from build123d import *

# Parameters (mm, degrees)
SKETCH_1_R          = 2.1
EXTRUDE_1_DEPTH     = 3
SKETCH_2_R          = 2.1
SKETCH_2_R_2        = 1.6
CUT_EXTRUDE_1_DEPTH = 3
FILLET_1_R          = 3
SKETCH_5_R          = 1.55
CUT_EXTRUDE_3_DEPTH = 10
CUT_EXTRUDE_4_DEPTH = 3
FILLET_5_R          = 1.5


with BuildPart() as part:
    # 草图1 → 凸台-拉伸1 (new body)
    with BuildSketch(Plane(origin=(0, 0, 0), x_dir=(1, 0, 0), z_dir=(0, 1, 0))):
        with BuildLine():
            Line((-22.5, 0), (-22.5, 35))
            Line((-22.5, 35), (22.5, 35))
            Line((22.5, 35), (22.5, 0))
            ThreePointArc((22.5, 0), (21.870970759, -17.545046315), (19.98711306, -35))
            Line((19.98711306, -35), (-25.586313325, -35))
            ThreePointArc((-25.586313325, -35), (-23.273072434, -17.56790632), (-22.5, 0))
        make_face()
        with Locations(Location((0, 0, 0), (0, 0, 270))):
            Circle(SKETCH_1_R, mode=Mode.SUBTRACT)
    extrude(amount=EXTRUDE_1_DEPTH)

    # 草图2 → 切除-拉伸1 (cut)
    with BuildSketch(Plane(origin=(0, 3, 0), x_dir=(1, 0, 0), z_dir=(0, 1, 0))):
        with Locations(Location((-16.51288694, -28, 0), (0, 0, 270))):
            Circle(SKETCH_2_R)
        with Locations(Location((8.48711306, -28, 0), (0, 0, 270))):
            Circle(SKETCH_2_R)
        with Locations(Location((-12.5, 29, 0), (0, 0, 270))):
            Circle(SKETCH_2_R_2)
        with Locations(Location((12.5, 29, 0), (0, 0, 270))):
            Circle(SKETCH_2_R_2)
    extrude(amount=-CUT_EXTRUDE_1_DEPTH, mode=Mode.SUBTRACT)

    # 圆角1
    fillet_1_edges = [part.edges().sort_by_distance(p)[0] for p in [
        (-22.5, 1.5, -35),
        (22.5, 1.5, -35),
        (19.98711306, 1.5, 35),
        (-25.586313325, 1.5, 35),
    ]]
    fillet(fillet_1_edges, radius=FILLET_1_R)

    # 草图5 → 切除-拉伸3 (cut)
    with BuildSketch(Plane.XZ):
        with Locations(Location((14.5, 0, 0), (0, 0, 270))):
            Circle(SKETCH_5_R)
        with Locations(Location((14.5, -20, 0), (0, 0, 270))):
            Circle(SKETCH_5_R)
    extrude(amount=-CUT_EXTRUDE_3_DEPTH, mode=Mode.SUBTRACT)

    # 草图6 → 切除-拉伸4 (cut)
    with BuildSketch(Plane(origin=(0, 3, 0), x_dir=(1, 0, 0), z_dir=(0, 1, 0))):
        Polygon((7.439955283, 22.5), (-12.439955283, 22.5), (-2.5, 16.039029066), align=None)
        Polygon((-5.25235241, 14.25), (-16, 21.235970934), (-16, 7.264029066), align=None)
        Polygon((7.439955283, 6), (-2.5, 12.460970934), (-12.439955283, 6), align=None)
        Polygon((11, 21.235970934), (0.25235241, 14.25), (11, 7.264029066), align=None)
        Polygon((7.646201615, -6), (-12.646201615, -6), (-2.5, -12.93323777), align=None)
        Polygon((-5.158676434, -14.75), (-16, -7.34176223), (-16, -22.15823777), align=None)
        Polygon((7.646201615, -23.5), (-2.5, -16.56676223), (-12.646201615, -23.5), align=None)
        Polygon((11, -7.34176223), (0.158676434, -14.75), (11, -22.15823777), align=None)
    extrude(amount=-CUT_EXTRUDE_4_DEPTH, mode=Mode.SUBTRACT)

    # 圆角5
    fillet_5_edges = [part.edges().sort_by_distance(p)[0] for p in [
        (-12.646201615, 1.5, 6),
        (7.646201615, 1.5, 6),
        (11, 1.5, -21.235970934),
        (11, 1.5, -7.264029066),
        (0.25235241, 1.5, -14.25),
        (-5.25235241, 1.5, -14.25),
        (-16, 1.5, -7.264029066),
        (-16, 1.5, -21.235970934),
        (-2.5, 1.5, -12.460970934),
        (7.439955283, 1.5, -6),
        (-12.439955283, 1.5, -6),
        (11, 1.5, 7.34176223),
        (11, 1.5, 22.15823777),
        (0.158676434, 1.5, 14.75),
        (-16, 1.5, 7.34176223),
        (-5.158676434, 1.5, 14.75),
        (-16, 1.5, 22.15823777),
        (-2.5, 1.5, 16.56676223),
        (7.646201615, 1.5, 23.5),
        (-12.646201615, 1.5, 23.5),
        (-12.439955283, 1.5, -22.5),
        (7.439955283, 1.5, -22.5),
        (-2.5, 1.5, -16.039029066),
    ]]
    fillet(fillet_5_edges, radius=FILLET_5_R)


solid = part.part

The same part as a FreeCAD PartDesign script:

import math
import FreeCAD as App
import Part
import Sketcher
Q = App.Units.Quantity


def edges_at(feature, points):
    """Names of the edges that pass closest to the given points."""
    edges = feature.Shape.Edges
    near = lambda p: min(range(len(edges)), key=lambda i: edges[i].distToShape(Part.Vertex(*p))[0])
    return sorted({f"Edge{near(p) + 1}" for p in points})

doc = App.newDocument("Part")
body = doc.addObject("PartDesign::Body", "Body")

# Sketch on XZ plane
sketch1 = doc.addObject("Sketcher::SketchObject", "Sketch")
body.addObject(sketch1)
sketch1.AttachmentSupport = (doc.XZ_Plane, [""])
sketch1.MapMode = "FlatFace"
sketch1.addGeometry(Part.LineSegment(App.Vector(-22.5, -35, 0), App.Vector(-22.5, 0, 0)), False)
sketch1.addGeometry(Part.ArcOfCircle(Part.Circle(App.Vector(-222.5, 0, 0), App.Vector(0, 0, 1), 200), math.radians(0), math.radians(10.08)), False)
sketch1.addGeometry(Part.LineSegment(App.Vector(-25.6, 35, 0), App.Vector(20, 35, 0)), False)
sketch1.addGeometry(Part.ArcOfCircle(Part.Circle(App.Vector(-222.5, 0, 0), App.Vector(0, 0, 1), 245), math.radians(0), math.radians(8.21)), False)
sketch1.addGeometry(Part.LineSegment(App.Vector(22.5, 0, 0), App.Vector(22.5, -35, 0)), False)
sketch1.addGeometry(Part.LineSegment(App.Vector(22.5, -35, 0), App.Vector(-22.5, -35, 0)), False)
sketch1.addGeometry(Part.Circle(App.Vector(0, 0, 0), App.Vector(0, 0, 1), 2.1), False)
sketch1.addConstraint(Sketcher.Constraint("Tangent", 0, 2, 1, 1))
sketch1.addConstraint(Sketcher.Constraint("Coincident", 1, 2, 2, 1))
sketch1.addConstraint(Sketcher.Constraint("Coincident", 2, 2, 3, 2))
sketch1.addConstraint(Sketcher.Constraint("Tangent", 3, 1, 4, 1))
sketch1.addConstraint(Sketcher.Constraint("Coincident", 4, 2, 5, 1))
sketch1.addConstraint(Sketcher.Constraint("Coincident", 5, 2, 0, 1))
sketch1.addConstraint(Sketcher.Constraint("Vertical", 0))
sketch1.addConstraint(Sketcher.Constraint("Horizontal", 2))
sketch1.addConstraint(Sketcher.Constraint("Vertical", 4))
sketch1.addConstraint(Sketcher.Constraint("Horizontal", 5))
sketch1.addConstraint(Sketcher.Constraint("Coincident", 6, 3, -1, 1))
sketch1.addConstraint(Sketcher.Constraint("Coincident", 3, 3, 1, 3))
sketch1.addConstraint(Sketcher.Constraint("Symmetric", 0, 2, 3, 1, -1, 1))
sketch1.addConstraint(Sketcher.Constraint("Radius", 1, Q("200 mm")))
sketch1.addConstraint(Sketcher.Constraint("Radius", 3, Q("245 mm")))
sketch1.addConstraint(Sketcher.Constraint("Diameter", 6, Q("4.2 mm")))
sketch1.addConstraint(Sketcher.Constraint("DistanceY", 0, 1, 0, 2, Q("35 mm")))
sketch1.addConstraint(Sketcher.Constraint("DistanceY", -1, 1, 1, 2, Q("35 mm")))
pad1 = doc.addObject("PartDesign::Pad", "Pad")
body.addObject(pad1)
pad1.Profile = sketch1
pad1.Length = 3
pad1.Reversed = True

# Sketch on XZ plane
sketch2 = doc.addObject("Sketcher::SketchObject", "Sketch001")
body.addObject(sketch2)
sketch2.AttachmentSupport = (doc.XZ_Plane, [""])
sketch2.MapMode = "FlatFace"
sketch2.AttachmentOffset = App.Placement(App.Vector(0, 0, -3), App.Rotation())
sketch2.addGeometry(Part.Circle(App.Vector(-16.5, 28, 0), App.Vector(0, 0, 1), 2.1), False)
sketch2.addGeometry(Part.Circle(App.Vector(8.5, 28, 0), App.Vector(0, 0, 1), 2.1), False)
sketch2.addGeometry(Part.Circle(App.Vector(-12.5, -29, 0), App.Vector(0, 0, 1), 1.6), False)
sketch2.addGeometry(Part.Circle(App.Vector(12.5, -29, 0), App.Vector(0, 0, 1), 1.6), False)
sketch2.addConstraint(Sketcher.Constraint("Equal", 0, 1))
sketch2.addConstraint(Sketcher.Constraint("Equal", 2, 3))
sketch2.addConstraint(Sketcher.Constraint("Symmetric", 2, 3, 3, 3, -2))
sketch2.addConstraint(Sketcher.Constraint("Horizontal", 0, 3, 1, 3))
sketch2.addConstraint(Sketcher.Constraint("Diameter", 0, Q("4.2 mm")))
sketch2.addConstraint(Sketcher.Constraint("Diameter", 2, Q("3.2 mm")))
sketch2.addConstraint(Sketcher.Constraint("DistanceY", -1, 1, 0, 3, Q("28 mm")))
sketch2.addConstraint(Sketcher.Constraint("DistanceY", 2, 3, -1, 1, Q("29 mm")))
sketch2.addConstraint(Sketcher.Constraint("DistanceX", 0, 3, 1, 3, Q("25 mm")))
sketch2.addConstraint(Sketcher.Constraint("DistanceX", 2, 3, 3, 3, Q("25 mm")))
sketch2.addConstraint(Sketcher.Constraint("DistanceX", 0, 3, -1, 1, Q("16.512887 mm")))
pocket1 = doc.addObject("PartDesign::Pocket", "Pocket")
body.addObject(pocket1)
pocket1.Profile = sketch2
pocket1.Length = 3
pocket1.Reversed = True
doc.recompute()

fillet = doc.addObject("PartDesign::Fillet", "Fillet")
body.addObject(fillet)
fillet.Base = (pocket1, edges_at(pocket1, [
    (-22.5, 1.5, -35),
    (22.5, 1.5, -35),
    (19.987, 1.5, 35),
    (-25.586, 1.5, 35),
]))
fillet.Radius = 3

# Sketch on XZ plane
sketch3 = doc.addObject("Sketcher::SketchObject", "Sketch002")
body.addObject(sketch3)
sketch3.AttachmentSupport = (doc.XZ_Plane, [""])
sketch3.MapMode = "FlatFace"
sketch3.addGeometry(Part.Circle(App.Vector(14.5, 0, 0), App.Vector(0, 0, 1), 1.6), False)
sketch3.addGeometry(Part.Circle(App.Vector(14.5, -20, 0), App.Vector(0, 0, 1), 1.6), False)
sketch3.addConstraint(Sketcher.Constraint("Equal", 0, 1))
sketch3.addConstraint(Sketcher.Constraint("PointOnObject", 0, 3, -1))
sketch3.addConstraint(Sketcher.Constraint("Vertical", 0, 3, 1, 3))
sketch3.addConstraint(Sketcher.Constraint("Diameter", 0, Q("3.1 mm")))
sketch3.addConstraint(Sketcher.Constraint("DistanceY", 1, 3, -1, 1, Q("20 mm")))
sketch3.addConstraint(Sketcher.Constraint("DistanceX", -1, 1, 0, 3, Q("14.5 mm")))
pocket2 = doc.addObject("PartDesign::Pocket", "Pocket001")
body.addObject(pocket2)
pocket2.Profile = sketch3
pocket2.Length = 10

# Sketch on XZ plane
sketch4 = doc.addObject("Sketcher::SketchObject", "Sketch003")
body.addObject(sketch4)
sketch4.AttachmentSupport = (doc.XZ_Plane, [""])
sketch4.MapMode = "FlatFace"
sketch4.AttachmentOffset = App.Placement(App.Vector(0, 0, -3), App.Rotation())
sketch4.addGeometry(Part.LineSegment(App.Vector(7, -22, 0), App.Vector(-12, -22, 0)), False)
sketch4.addGeometry(Part.LineSegment(App.Vector(-12, -22, 0), App.Vector(-2, -16, 0)), False)
sketch4.addGeometry(Part.LineSegment(App.Vector(-2, -16, 0), App.Vector(7, -22, 0)), False)
sketch4.addGeometry(Part.LineSegment(App.Vector(-5, -14, 0), App.Vector(-16, -21, 0)), False)
sketch4.addGeometry(Part.LineSegment(App.Vector(-16, -21, 0), App.Vector(-16, -7, 0)), False)
sketch4.addGeometry(Part.LineSegment(App.Vector(-16, -7, 0), App.Vector(-5, -14, 0)), False)
sketch4.addGeometry(Part.LineSegment(App.Vector(7, -6, 0), App.Vector(-2, -12, 0)), False)
sketch4.addGeometry(Part.LineSegment(App.Vector(-2, -12, 0), App.Vector(-12, -6, 0)), False)
sketch4.addGeometry(Part.LineSegment(App.Vector(-12, -6, 0), App.Vector(7, -6, 0)), False)
sketch4.addGeometry(Part.LineSegment(App.Vector(11, -21, 0), App.Vector(0, -14, 0)), False)
sketch4.addGeometry(Part.LineSegment(App.Vector(0, -14, 0), App.Vector(11, -7, 0)), False)
sketch4.addGeometry(Part.LineSegment(App.Vector(11, -7, 0), App.Vector(11, -21, 0)), False)
sketch4.addGeometry(Part.LineSegment(App.Vector(8, 6, 0), App.Vector(-13, 6, 0)), False)
sketch4.addGeometry(Part.LineSegment(App.Vector(-13, 6, 0), App.Vector(-2, 13, 0)), False)
sketch4.addGeometry(Part.LineSegment(App.Vector(-2, 13, 0), App.Vector(8, 6, 0)), False)
sketch4.addGeometry(Part.LineSegment(App.Vector(-5, 15, 0), App.Vector(-16, 7, 0)), False)
sketch4.addGeometry(Part.LineSegment(App.Vector(-16, 7, 0), App.Vector(-16, 22, 0)), False)
sketch4.addGeometry(Part.LineSegment(App.Vector(-16, 22, 0), App.Vector(-5, 15, 0)), False)
sketch4.addGeometry(Part.LineSegment(App.Vector(8, 24, 0), App.Vector(-2, 17, 0)), False)
sketch4.addGeometry(Part.LineSegment(App.Vector(-2, 17, 0), App.Vector(-13, 24, 0)), False)
sketch4.addGeometry(Part.LineSegment(App.Vector(-13, 24, 0), App.Vector(8, 24, 0)), False)
sketch4.addGeometry(Part.LineSegment(App.Vector(11, 7, 0), App.Vector(0, 15, 0)), False)
sketch4.addGeometry(Part.LineSegment(App.Vector(0, 15, 0), App.Vector(11, 22, 0)), False)
sketch4.addGeometry(Part.LineSegment(App.Vector(11, 22, 0), App.Vector(11, 7, 0)), False)
sketch4.addConstraint(Sketcher.Constraint("Coincident", 0, 2, 1, 1))
sketch4.addConstraint(Sketcher.Constraint("Coincident", 1, 2, 2, 1))
sketch4.addConstraint(Sketcher.Constraint("Coincident", 2, 2, 0, 1))
sketch4.addConstraint(Sketcher.Constraint("Coincident", 3, 2, 4, 1))
sketch4.addConstraint(Sketcher.Constraint("Coincident", 4, 2, 5, 1))
sketch4.addConstraint(Sketcher.Constraint("Coincident", 5, 2, 3, 1))
sketch4.addConstraint(Sketcher.Constraint("Coincident", 6, 2, 7, 1))
sketch4.addConstraint(Sketcher.Constraint("Coincident", 7, 2, 8, 1))
sketch4.addConstraint(Sketcher.Constraint("Coincident", 8, 2, 6, 1))
sketch4.addConstraint(Sketcher.Constraint("Coincident", 9, 2, 10, 1))
sketch4.addConstraint(Sketcher.Constraint("Coincident", 10, 2, 11, 1))
sketch4.addConstraint(Sketcher.Constraint("Coincident", 11, 2, 9, 1))
sketch4.addConstraint(Sketcher.Constraint("Coincident", 12, 2, 13, 1))
sketch4.addConstraint(Sketcher.Constraint("Coincident", 13, 2, 14, 1))
sketch4.addConstraint(Sketcher.Constraint("Coincident", 14, 2, 12, 1))
sketch4.addConstraint(Sketcher.Constraint("Coincident", 15, 2, 16, 1))
sketch4.addConstraint(Sketcher.Constraint("Coincident", 16, 2, 17, 1))
sketch4.addConstraint(Sketcher.Constraint("Coincident", 17, 2, 15, 1))
sketch4.addConstraint(Sketcher.Constraint("Coincident", 18, 2, 19, 1))
sketch4.addConstraint(Sketcher.Constraint("Coincident", 19, 2, 20, 1))
sketch4.addConstraint(Sketcher.Constraint("Coincident", 20, 2, 18, 1))
sketch4.addConstraint(Sketcher.Constraint("Coincident", 21, 2, 22, 1))
sketch4.addConstraint(Sketcher.Constraint("Coincident", 22, 2, 23, 1))
sketch4.addConstraint(Sketcher.Constraint("Coincident", 23, 2, 21, 1))
sketch4.addConstraint(Sketcher.Constraint("Horizontal", 0))
sketch4.addConstraint(Sketcher.Constraint("Vertical", 4))
sketch4.addConstraint(Sketcher.Constraint("Horizontal", 8))
sketch4.addConstraint(Sketcher.Constraint("Vertical", 11))
sketch4.addConstraint(Sketcher.Constraint("Horizontal", 12))
sketch4.addConstraint(Sketcher.Constraint("Vertical", 16))
sketch4.addConstraint(Sketcher.Constraint("Horizontal", 20))
sketch4.addConstraint(Sketcher.Constraint("Vertical", 23))
sketch4.addConstraint(Sketcher.Constraint("Parallel", 1, 3))
sketch4.addConstraint(Sketcher.Constraint("Parallel", 2, 5))
sketch4.addConstraint(Sketcher.Constraint("Parallel", 3, 6))
sketch4.addConstraint(Sketcher.Constraint("Parallel", 5, 7))
sketch4.addConstraint(Sketcher.Constraint("Parallel", 7, 9))
sketch4.addConstraint(Sketcher.Constraint("Parallel", 6, 10))
sketch4.addConstraint(Sketcher.Constraint("Parallel", 13, 15))
sketch4.addConstraint(Sketcher.Constraint("Parallel", 14, 17))
sketch4.addConstraint(Sketcher.Constraint("Parallel", 15, 18))
sketch4.addConstraint(Sketcher.Constraint("Parallel", 17, 19))
sketch4.addConstraint(Sketcher.Constraint("Parallel", 19, 21))
sketch4.addConstraint(Sketcher.Constraint("Parallel", 18, 22))
sketch4.addConstraint(Sketcher.Constraint("Horizontal", 5, 2, 9, 2))
sketch4.addConstraint(Sketcher.Constraint("Horizontal", 4, 2, 10, 2))
sketch4.addConstraint(Sketcher.Constraint("Horizontal", 3, 2, 11, 2))
sketch4.addConstraint(Sketcher.Constraint("Horizontal", 17, 2, 21, 2))
sketch4.addConstraint(Sketcher.Constraint("Horizontal", 16, 2, 22, 2))
sketch4.addConstraint(Sketcher.Constraint("Horizontal", 15, 2, 23, 2))
sketch4.addConstraint(Sketcher.Constraint("Vertical", 1, 2, 6, 2))
sketch4.addConstraint(Sketcher.Constraint("Vertical", 0, 2, 7, 2))
sketch4.addConstraint(Sketcher.Constraint("Vertical", 6, 2, 13, 2))
sketch4.addConstraint(Sketcher.Constraint("Vertical", 4, 2, 15, 2))
sketch4.addConstraint(Sketcher.Constraint("Vertical", 13, 2, 18, 2))
sketch4.addConstraint(Sketcher.Constraint("Vertical", 12, 2, 19, 2))
sketch4.addConstraint(Sketcher.Constraint("Vertical", 11, 2, 22, 2))
sketch4.addConstraint(Sketcher.Constraint("DistanceX", 3, 2, -1, 1, Q("16 mm")))
sketch4.addConstraint(Sketcher.Constraint("DistanceY", 7, 2, -1, 1, Q("6 mm")))
sketch4.addConstraint(Sketcher.Constraint("DistanceX", -1, 1, 10, 2, Q("11 mm")))
sketch4.addConstraint(Sketcher.Constraint("DistanceY", -1, 1, 12, 2, Q("6 mm")))
sketch4.addConstraint(Sketcher.Constraint("DistanceY", 0, 2, -1, 1, Q("22.5 mm")))
sketch4.addConstraint(Sketcher.Constraint("DistanceX", 1, 2, -1, 1, Q("2.5 mm")))
sketch4.addConstraint(Sketcher.Constraint("DistanceY", -1, 1, 19, 2, Q("23.5 mm")))
sketch4.addConstraint(Sketcher.Constraint("DistanceY", 5, 2, -1, 1, Q("14.25 mm")))
sketch4.addConstraint(Sketcher.Constraint("DistanceY", -1, 1, 17, 2, Q("14.75 mm")))
sketch4.addConstraint(Sketcher.Constraint("DistanceY", 1, 2, 4, 2, Q("8.775 mm")))
sketch4.addConstraint(Sketcher.Constraint("DistanceY", 13, 2, 16, 2, Q("9.225 mm")))
sketch4.addConstraint(Sketcher.Constraint("DistanceX", 0, 2, 0, 1, Q("19.879911 mm")))
sketch4.addConstraint(Sketcher.Constraint("DistanceY", 4, 1, 4, 2, Q("13.971942 mm")))
sketch4.addConstraint(Sketcher.Constraint("DistanceX", 12, 2, -1, 1, Q("12.646202 mm")))
sketch4.addConstraint(Sketcher.Constraint("Distance", 15, Q("13.130738 mm")))
pocket3 = doc.addObject("PartDesign::Pocket", "Pocket002")
body.addObject(pocket3)
pocket3.Profile = sketch4
pocket3.Length = 3
pocket3.Reversed = True
doc.recompute()

fillet2 = doc.addObject("PartDesign::Fillet", "Fillet001")
body.addObject(fillet2)
fillet2.Base = (pocket3, edges_at(pocket3, [
    (-12.646, 1.5, 6),
    (7.646, 1.5, 6),
    (11, 1.5, -21.236),
    (11, 1.5, -7.264),
    (0.252, 1.5, -14.25),
    (-5.252, 1.5, -14.25),
    (-16, 1.5, -7.264),
    (-16, 1.5, -21.236),
    (-2.5, 1.5, -12.461),
    (7.44, 1.5, -6),
    (-12.44, 1.5, -6),
    (11, 1.5, 7.342),
    (11, 1.5, 22.158),
    (0.159, 1.5, 14.75),
    (-16, 1.5, 7.342),
    (-5.159, 1.5, 14.75),
    (-16, 1.5, 22.158),
    (-2.5, 1.5, 16.567),
    (7.646, 1.5, 23.5),
    (-12.646, 1.5, 23.5),
    (-12.44, 1.5, -22.5),
    (7.44, 1.5, -22.5),
    (-2.5, 1.5, -16.039),
]))
fillet2.Radius = 1.5

doc.recompute()
